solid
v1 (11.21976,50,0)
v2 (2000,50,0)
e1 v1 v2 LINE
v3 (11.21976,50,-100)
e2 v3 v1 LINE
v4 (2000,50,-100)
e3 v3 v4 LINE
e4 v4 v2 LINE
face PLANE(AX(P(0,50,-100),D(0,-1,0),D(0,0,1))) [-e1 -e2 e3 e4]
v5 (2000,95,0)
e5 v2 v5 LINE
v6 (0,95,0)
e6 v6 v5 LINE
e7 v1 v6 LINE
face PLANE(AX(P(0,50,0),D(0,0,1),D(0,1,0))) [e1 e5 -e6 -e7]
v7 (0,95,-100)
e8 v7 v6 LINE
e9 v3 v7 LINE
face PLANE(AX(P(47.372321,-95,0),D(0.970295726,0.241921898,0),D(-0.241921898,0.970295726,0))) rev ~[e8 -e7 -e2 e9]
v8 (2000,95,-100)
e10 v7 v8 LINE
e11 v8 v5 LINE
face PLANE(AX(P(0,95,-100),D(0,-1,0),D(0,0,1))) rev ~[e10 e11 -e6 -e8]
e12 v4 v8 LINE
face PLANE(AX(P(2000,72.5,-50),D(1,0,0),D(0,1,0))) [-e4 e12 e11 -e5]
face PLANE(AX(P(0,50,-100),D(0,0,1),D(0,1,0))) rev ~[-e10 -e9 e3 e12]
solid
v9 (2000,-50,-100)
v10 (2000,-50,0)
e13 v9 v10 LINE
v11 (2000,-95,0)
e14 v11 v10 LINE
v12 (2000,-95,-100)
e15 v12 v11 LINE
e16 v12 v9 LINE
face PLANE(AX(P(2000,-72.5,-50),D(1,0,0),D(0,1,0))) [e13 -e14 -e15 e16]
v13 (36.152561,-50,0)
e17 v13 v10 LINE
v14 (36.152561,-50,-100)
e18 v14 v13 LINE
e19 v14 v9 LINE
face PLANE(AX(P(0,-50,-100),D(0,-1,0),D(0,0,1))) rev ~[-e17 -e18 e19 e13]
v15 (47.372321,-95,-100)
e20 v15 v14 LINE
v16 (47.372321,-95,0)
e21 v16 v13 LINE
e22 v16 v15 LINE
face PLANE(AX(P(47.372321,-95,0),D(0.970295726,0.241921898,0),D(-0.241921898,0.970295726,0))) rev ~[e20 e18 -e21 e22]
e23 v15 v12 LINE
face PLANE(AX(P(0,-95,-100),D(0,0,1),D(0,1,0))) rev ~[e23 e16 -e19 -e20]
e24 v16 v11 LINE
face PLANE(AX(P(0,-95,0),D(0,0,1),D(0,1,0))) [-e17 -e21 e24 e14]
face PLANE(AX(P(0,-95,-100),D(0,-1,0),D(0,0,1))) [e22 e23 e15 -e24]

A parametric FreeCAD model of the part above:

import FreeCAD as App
import Part
import Sketcher

V = App.Vector
Q = App.Units.Quantity


def add_polygon(sketch, points):
    """Adds a closed chain of lines whose ends are joined by coincident constraints."""
    first, n = sketch.GeometryCount, len(points)
    for a, b in zip(points, points[1:] + points[:1]):
        sketch.addGeometry(Part.LineSegment(App.Vector(*a, 0), App.Vector(*b, 0)), False)
    for i in range(n):
        sketch.addConstraint(Sketcher.Constraint("Coincident", first + i, 2, first + (i + 1) % n, 1))

doc = App.newDocument("Part")
body = doc.addObject("PartDesign::Body", "Body")
body.AllowCompound = True

# Sketch on YZ plane
sketch1 = body.newObject("Sketcher::SketchObject", "Sketch")
sketch1.AttachmentSupport = (doc.getObject("YZ_Plane"), [""])
sketch1.MapMode = "FlatFace"
add_polygon(sketch1, [(-95, 0), (-95, -100), (-50, -100), (-50, 0)])  # lines 0-3
add_polygon(sketch1, [(50, 0), (50, -100), (95, -100), (95, 0)])  # lines 4-7
sketch1.addConstraint([
    Sketcher.Constraint("Vertical", 0),
    Sketcher.Constraint("Horizontal", 1),
    Sketcher.Constraint("Vertical", 2),
    Sketcher.Constraint("Horizontal", 3),
    Sketcher.Constraint("Vertical", 4),
    Sketcher.Constraint("Horizontal", 5),
    Sketcher.Constraint("Vertical", 6),
    Sketcher.Constraint("Horizontal", 7),
    Sketcher.Constraint("Symmetric", 3, 2, 6, 2, -1, 1),
    Sketcher.Constraint("Symmetric", 1, 2, 4, 2, -2),
    Sketcher.Constraint("PointOnObject", 2, 2, -1),
    Sketcher.Constraint("DistanceX", 1, 1, 1, 2, 45.0),
    Sketcher.Constraint("DistanceY", 0, 2, 0, 1, 100.0),
    Sketcher.Constraint("DistanceX", 0, 2, -1, 1, 95.0),
])
pad1 = body.newObject("PartDesign::Pad", "Pad")
pad1.Profile = sketch1
pad1.Length = 2000

# Sketch on XY plane
sketch2 = body.newObject("Sketcher::SketchObject", "Sketch001")
sketch2.AttachmentSupport = (doc.getObject("XY_Plane"), [""])
sketch2.MapMode = "FlatFace"
add_polygon(sketch2, [(47, -95), (0, 95), (0, -95)])  # lines 0-2
sketch2.addConstraint([
    Sketcher.Constraint("Vertical", 1),
    Sketcher.Constraint("Horizontal", 2),
    Sketcher.Constraint("Symmetric", 0, 2, 1, 2, -1, 1),
    Sketcher.Constraint("DistanceY", 1, 2, 1, 1, 190.0),
    Sketcher.Constraint("Angle", 0, Q("104 deg")),
])
pocket1 = body.newObject("PartDesign::Pocket", "Pocket")
pocket1.Profile = sketch2
pocket1.Length = 100

doc.recompute()
